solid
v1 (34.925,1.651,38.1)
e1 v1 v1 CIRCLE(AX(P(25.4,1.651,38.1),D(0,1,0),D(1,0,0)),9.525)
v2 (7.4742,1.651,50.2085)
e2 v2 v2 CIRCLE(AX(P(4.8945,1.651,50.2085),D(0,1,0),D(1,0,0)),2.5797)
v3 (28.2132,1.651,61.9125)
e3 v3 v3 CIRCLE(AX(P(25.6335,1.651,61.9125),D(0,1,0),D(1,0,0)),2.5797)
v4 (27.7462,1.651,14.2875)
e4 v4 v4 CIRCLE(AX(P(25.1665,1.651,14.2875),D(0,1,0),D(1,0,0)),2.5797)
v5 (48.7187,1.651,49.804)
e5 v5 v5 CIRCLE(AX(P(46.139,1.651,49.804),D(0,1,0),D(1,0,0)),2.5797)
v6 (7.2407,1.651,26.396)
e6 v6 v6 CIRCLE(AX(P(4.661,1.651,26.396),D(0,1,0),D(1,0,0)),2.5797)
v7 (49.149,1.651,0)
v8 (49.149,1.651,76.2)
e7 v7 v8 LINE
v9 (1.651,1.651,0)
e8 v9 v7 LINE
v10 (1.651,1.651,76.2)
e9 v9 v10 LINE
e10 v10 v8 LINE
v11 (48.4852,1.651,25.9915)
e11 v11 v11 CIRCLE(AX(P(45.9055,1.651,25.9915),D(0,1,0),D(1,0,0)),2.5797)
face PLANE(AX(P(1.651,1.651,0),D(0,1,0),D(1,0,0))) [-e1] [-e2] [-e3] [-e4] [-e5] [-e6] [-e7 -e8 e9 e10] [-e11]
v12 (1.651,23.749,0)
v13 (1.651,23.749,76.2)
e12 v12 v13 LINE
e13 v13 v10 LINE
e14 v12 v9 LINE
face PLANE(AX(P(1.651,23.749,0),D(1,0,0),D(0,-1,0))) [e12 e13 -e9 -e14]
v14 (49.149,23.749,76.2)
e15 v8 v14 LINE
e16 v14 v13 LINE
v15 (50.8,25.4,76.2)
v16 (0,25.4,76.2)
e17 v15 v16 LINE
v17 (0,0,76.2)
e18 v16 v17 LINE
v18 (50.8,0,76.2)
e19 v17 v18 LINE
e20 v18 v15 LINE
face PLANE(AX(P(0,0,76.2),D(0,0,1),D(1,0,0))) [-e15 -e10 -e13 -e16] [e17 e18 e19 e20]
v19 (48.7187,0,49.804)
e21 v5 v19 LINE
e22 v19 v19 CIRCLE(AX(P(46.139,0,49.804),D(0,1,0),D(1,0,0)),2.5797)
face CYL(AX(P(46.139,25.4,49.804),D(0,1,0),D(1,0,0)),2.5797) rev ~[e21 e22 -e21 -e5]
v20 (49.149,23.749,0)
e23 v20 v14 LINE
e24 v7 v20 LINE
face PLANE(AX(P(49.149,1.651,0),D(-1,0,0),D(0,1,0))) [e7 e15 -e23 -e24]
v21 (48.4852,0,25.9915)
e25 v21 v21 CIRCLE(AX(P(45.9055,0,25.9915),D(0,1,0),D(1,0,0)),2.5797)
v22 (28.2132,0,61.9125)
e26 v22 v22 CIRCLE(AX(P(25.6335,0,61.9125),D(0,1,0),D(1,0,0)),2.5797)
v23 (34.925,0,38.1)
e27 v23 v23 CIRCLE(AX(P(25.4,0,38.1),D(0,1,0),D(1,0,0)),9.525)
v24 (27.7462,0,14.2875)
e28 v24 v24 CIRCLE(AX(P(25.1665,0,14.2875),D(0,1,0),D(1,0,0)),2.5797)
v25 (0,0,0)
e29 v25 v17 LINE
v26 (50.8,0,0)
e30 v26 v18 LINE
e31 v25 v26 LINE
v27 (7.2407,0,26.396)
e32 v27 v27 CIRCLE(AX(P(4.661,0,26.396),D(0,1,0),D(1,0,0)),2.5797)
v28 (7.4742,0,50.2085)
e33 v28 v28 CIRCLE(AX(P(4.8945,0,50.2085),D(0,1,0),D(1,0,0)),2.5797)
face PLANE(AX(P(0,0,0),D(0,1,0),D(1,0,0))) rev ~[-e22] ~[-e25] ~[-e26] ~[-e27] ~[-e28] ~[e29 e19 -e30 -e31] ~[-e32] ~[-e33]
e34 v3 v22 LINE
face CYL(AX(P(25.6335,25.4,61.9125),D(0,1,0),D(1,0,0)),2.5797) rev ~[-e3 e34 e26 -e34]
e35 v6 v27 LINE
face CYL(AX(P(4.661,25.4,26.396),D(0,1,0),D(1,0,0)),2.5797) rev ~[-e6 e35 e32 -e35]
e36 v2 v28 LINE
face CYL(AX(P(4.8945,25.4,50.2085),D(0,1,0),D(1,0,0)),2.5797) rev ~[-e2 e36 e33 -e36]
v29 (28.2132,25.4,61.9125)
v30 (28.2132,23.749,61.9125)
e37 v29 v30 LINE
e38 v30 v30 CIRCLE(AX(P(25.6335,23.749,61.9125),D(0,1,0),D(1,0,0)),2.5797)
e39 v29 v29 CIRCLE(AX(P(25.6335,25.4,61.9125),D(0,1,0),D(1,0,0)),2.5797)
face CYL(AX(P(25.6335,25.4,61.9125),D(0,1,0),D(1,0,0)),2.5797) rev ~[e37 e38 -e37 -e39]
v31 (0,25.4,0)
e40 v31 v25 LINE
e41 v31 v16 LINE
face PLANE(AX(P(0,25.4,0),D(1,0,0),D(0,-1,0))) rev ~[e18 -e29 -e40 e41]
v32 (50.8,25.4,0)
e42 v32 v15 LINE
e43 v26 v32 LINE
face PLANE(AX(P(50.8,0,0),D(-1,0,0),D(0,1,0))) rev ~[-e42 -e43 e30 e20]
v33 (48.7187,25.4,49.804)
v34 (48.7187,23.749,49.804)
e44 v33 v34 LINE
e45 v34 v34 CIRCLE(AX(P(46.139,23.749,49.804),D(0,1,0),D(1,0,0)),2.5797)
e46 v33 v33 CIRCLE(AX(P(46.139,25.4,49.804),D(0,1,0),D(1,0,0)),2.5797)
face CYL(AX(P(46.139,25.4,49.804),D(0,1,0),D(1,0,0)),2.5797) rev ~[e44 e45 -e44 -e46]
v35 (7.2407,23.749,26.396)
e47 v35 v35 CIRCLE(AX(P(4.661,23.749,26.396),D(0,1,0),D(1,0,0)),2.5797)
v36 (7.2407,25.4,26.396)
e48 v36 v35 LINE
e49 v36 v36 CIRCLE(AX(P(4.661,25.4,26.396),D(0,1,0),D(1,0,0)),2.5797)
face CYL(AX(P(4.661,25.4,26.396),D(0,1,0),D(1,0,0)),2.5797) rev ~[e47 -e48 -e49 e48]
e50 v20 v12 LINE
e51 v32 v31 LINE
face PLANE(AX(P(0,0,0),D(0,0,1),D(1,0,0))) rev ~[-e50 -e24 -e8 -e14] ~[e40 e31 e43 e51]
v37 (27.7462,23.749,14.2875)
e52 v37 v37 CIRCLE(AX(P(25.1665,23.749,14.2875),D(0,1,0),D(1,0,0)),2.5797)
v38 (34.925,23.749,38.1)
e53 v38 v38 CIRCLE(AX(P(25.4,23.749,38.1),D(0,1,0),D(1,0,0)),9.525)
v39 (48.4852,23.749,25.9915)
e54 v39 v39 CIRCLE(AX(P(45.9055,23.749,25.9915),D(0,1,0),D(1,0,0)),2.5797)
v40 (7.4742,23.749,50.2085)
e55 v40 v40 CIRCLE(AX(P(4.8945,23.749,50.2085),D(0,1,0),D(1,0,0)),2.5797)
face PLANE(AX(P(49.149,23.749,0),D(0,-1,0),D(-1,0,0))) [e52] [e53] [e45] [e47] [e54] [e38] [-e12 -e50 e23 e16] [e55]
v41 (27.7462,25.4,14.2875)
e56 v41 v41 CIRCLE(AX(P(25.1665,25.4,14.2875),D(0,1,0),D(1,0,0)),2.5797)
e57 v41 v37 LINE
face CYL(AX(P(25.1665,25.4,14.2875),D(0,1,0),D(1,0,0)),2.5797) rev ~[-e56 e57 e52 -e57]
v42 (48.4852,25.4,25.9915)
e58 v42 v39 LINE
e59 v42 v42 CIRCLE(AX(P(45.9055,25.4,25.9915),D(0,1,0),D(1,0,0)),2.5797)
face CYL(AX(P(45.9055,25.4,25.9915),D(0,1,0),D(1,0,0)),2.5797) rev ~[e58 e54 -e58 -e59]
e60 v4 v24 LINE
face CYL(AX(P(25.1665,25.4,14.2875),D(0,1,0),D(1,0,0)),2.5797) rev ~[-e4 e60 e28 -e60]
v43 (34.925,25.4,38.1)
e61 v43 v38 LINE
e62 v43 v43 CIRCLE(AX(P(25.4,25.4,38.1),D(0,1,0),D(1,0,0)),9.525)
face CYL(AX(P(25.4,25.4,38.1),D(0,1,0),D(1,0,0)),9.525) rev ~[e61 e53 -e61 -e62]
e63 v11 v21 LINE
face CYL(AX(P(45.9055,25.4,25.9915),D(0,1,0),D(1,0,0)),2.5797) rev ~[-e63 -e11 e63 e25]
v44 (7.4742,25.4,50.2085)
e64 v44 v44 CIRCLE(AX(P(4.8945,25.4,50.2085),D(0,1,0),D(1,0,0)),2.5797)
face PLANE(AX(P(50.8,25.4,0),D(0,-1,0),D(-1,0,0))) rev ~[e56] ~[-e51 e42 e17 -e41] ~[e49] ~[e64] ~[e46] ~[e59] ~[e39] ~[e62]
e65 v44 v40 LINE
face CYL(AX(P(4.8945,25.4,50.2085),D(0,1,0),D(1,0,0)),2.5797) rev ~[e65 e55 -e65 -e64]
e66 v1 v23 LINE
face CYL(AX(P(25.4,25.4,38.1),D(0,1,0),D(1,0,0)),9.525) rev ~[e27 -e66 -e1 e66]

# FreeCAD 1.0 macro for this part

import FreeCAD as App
import Part
import Sketcher
Q = App.Units.Quantity


def add_polygon(sketch, points):
    """Adds a closed chain of lines whose ends are joined by coincident constraints."""
    first, n = sketch.GeometryCount, len(points)
    for a, b in zip(points, points[1:] + points[:1]):
        sketch.addGeometry(Part.LineSegment(App.Vector(*a, 0), App.Vector(*b, 0)), False)
    for i in range(n):
        sketch.addConstraint(Sketcher.Constraint("Coincident", first + i, 2, first + (i + 1) % n, 1))

doc = App.newDocument("Part")
params = doc.addObject("Spreadsheet::Sheet", "Params")
for row, (alias, value) in enumerate([
    ("sketch1_width", "2 in"),
    ("sketch1_height", "1 in"),
    ("pad1_length", "3 in"),
    ("sketch2_diameter", "0.75 in"),
    ("pocket1_length", "3 in"),
    ("sketch3_diameter", "0.203126 in"),
    ("pocket2_length", "3 in"),
], start=1):
    params.set(f"A{row}", alias)
    params.set(f"B{row}", "=" + value)
    params.setAlias(f"B{row}", alias)

body = doc.addObject("PartDesign::Body", "Body")

# Sketch on XY plane
sketch1 = doc.addObject("Sketcher::SketchObject", "Sketch")
body.addObject(sketch1)
sketch1.AttachmentSupport = (doc.XY_Plane, [""])
sketch1.MapMode = "FlatFace"
add_polygon(sketch1, [(0, 25), (0, 0), (51, 0), (51, 25)])  # lines 0-3
add_polygon(sketch1, [(2, 24), (49, 24), (49, 2), (2, 2)])  # lines 4-7
sketch1.addConstraint(Sketcher.Constraint("Vertical", 0))
sketch1.addConstraint(Sketcher.Constraint("Horizontal", 1))
sketch1.addConstraint(Sketcher.Constraint("Vertical", 2))
sketch1.addConstraint(Sketcher.Constraint("Horizontal", 3))
sketch1.addConstraint(Sketcher.Constraint("Horizontal", 4))
sketch1.addConstraint(Sketcher.Constraint("Vertical", 5))
sketch1.addConstraint(Sketcher.Constraint("Horizontal", 6))
sketch1.addConstraint(Sketcher.Constraint("Vertical", 7))
sketch1.addConstraint(Sketcher.Constraint("Coincident", 0, 2, -1, 1))
sketch1.addConstraint(Sketcher.Constraint("DistanceX", 1, 1, 1, 2, Q("2 in")))
sketch1.addConstraint(Sketcher.Constraint("DistanceY", 0, 2, 0, 1, Q("1 in")))
sketch1.addConstraint(Sketcher.Constraint("DistanceY", -1, 1, 5, 2, Q("0.065 in")))
sketch1.addConstraint(Sketcher.Constraint("DistanceX", -1, 1, 6, 2, Q("0.065 in")))
sketch1.addConstraint(Sketcher.Constraint("DistanceX", 4, 2, 2, 2, Q("0.065 in")))
sketch1.addConstraint(Sketcher.Constraint("DistanceY", 4, 2, 2, 2, Q("0.065 in")))
sketch1.setExpression("Constraints[17]", "Params.sketch1_width")
sketch1.setExpression("Constraints[18]", "Params.sketch1_height")
pad1 = doc.addObject("PartDesign::Pad", "Pad")
body.addObject(pad1)
pad1.Profile = sketch1
pad1.setExpression("Length", "Params.pad1_length")

# Sketch on XZ plane
sketch2 = doc.addObject("Sketcher::SketchObject", "Sketch001")
body.addObject(sketch2)
sketch2.AttachmentSupport = (doc.XZ_Plane, [""])
sketch2.MapMode = "FlatFace"
sketch2.AttachmentOffset = App.Placement(App.Vector(0, 0, -1 * 25.4), App.Rotation())
sketch2.addGeometry(Part.Circle(App.Vector(25, 38, 0), App.Vector(0, 0, 1), 10), False)
sketch2.addConstraint(Sketcher.Constraint("Diameter", 0, Q("0.75 in")))
sketch2.addConstraint(Sketcher.Constraint("DistanceX", -1, 1, 0, 3, Q("1 in")))
sketch2.addConstraint(Sketcher.Constraint("DistanceY", -1, 1, 0, 3, Q("1.5 in")))
sketch2.setExpression("Constraints[0]", "Params.sketch2_diameter")
pocket1 = doc.addObject("PartDesign::Pocket", "Pocket")
body.addObject(pocket1)
pocket1.Profile = sketch2
pocket1.setExpression("Length", "Params.pocket1_length")
pocket1.Reversed = True

# Sketch on XZ plane
sketch3 = doc.addObject("Sketcher::SketchObject", "Sketch002")
body.addObject(sketch3)
sketch3.AttachmentSupport = (doc.XZ_Plane, [""])
sketch3.MapMode = "FlatFace"
sketch3.AttachmentOffset = App.Placement(App.Vector(0, 0, -1 * 25.4), App.Rotation())
sketch3.addGeometry(Part.Circle(App.Vector(25.2, 14.3, 0), App.Vector(0, 0, 1), 2.6), False)
sketch3.addGeometry(Part.Circle(App.Vector(4.7, 26.4, 0), App.Vector(0, 0, 1), 2.6), False)
sketch3.addGeometry(Part.Circle(App.Vector(4.9, 50.2, 0), App.Vector(0, 0, 1), 2.6), False)
sketch3.addGeometry(Part.Circle(App.Vector(25.6, 61.9, 0), App.Vector(0, 0, 1), 2.6), False)
sketch3.addGeometry(Part.Circle(App.Vector(46.1, 49.8, 0), App.Vector(0, 0, 1), 2.6), False)
sketch3.addGeometry(Part.Circle(App.Vector(45.9, 26, 0), App.Vector(0, 0, 1), 2.6), False)
sketch3.addConstraint(Sketcher.Constraint("Equal", 0, 1))
sketch3.addConstraint(Sketcher.Constraint("Equal", 1, 2))
sketch3.addConstraint(Sketcher.Constraint("Equal", 2, 3))
sketch3.addConstraint(Sketcher.Constraint("Equal", 3, 4))
sketch3.addConstraint(Sketcher.Constraint("Equal", 4, 5))
sketch3.addConstraint(Sketcher.Constraint("Diameter", 0, Q("0.203126 in")))
sketch3.addConstraint(Sketcher.Constraint("DistanceY", 1, 3, 2, 3, Q("0.9375 in")))
sketch3.addConstraint(Sketcher.Constraint("DistanceY", 5, 3, 4, 3, Q("0.9375 in")))
sketch3.addConstraint(Sketcher.Constraint("DistanceY", -1, 1, 0, 3, Q("0.5625 in")))
sketch3.addConstraint(Sketcher.Constraint("DistanceY", -1, 1, 3, 3, Q("2.4375 in")))
sketch3.addConstraint(Sketcher.Constraint("DistanceX", 1, 3, 4, 3, Q("1.633 in")))
sketch3.addConstraint(Sketcher.Constraint("DistanceX", -1, 1, 0, 3, Q("0.9908 in")))
sketch3.addConstraint(Sketcher.Constraint("DistanceX", -1, 1, 1, 3, Q("0.1835 in")))
sketch3.addConstraint(Sketcher.Constraint("DistanceX", -1, 1, 2, 3, Q("0.1927 in")))
sketch3.addConstraint(Sketcher.Constraint("DistanceX", -1, 1, 3, 3, Q("1.0092 in")))
sketch3.addConstraint(Sketcher.Constraint("DistanceX", -1, 1, 5, 3, Q("1.8073 in")))
sketch3.addConstraint(Sketcher.Constraint("DistanceY", -1, 1, 1, 3, 26.396))
sketch3.addConstraint(Sketcher.Constraint("DistanceY", -1, 1, 4, 3, 49.804))
sketch3.setExpression("Constraints[5]", "Params.sketch3_diameter")
pocket2 = doc.addObject("PartDesign::Pocket", "Pocket001")
body.addObject(pocket2)
pocket2.Profile = sketch3
pocket2.setExpression("Length", "Params.pocket2_length")
pocket2.Reversed = True

doc.recompute()
